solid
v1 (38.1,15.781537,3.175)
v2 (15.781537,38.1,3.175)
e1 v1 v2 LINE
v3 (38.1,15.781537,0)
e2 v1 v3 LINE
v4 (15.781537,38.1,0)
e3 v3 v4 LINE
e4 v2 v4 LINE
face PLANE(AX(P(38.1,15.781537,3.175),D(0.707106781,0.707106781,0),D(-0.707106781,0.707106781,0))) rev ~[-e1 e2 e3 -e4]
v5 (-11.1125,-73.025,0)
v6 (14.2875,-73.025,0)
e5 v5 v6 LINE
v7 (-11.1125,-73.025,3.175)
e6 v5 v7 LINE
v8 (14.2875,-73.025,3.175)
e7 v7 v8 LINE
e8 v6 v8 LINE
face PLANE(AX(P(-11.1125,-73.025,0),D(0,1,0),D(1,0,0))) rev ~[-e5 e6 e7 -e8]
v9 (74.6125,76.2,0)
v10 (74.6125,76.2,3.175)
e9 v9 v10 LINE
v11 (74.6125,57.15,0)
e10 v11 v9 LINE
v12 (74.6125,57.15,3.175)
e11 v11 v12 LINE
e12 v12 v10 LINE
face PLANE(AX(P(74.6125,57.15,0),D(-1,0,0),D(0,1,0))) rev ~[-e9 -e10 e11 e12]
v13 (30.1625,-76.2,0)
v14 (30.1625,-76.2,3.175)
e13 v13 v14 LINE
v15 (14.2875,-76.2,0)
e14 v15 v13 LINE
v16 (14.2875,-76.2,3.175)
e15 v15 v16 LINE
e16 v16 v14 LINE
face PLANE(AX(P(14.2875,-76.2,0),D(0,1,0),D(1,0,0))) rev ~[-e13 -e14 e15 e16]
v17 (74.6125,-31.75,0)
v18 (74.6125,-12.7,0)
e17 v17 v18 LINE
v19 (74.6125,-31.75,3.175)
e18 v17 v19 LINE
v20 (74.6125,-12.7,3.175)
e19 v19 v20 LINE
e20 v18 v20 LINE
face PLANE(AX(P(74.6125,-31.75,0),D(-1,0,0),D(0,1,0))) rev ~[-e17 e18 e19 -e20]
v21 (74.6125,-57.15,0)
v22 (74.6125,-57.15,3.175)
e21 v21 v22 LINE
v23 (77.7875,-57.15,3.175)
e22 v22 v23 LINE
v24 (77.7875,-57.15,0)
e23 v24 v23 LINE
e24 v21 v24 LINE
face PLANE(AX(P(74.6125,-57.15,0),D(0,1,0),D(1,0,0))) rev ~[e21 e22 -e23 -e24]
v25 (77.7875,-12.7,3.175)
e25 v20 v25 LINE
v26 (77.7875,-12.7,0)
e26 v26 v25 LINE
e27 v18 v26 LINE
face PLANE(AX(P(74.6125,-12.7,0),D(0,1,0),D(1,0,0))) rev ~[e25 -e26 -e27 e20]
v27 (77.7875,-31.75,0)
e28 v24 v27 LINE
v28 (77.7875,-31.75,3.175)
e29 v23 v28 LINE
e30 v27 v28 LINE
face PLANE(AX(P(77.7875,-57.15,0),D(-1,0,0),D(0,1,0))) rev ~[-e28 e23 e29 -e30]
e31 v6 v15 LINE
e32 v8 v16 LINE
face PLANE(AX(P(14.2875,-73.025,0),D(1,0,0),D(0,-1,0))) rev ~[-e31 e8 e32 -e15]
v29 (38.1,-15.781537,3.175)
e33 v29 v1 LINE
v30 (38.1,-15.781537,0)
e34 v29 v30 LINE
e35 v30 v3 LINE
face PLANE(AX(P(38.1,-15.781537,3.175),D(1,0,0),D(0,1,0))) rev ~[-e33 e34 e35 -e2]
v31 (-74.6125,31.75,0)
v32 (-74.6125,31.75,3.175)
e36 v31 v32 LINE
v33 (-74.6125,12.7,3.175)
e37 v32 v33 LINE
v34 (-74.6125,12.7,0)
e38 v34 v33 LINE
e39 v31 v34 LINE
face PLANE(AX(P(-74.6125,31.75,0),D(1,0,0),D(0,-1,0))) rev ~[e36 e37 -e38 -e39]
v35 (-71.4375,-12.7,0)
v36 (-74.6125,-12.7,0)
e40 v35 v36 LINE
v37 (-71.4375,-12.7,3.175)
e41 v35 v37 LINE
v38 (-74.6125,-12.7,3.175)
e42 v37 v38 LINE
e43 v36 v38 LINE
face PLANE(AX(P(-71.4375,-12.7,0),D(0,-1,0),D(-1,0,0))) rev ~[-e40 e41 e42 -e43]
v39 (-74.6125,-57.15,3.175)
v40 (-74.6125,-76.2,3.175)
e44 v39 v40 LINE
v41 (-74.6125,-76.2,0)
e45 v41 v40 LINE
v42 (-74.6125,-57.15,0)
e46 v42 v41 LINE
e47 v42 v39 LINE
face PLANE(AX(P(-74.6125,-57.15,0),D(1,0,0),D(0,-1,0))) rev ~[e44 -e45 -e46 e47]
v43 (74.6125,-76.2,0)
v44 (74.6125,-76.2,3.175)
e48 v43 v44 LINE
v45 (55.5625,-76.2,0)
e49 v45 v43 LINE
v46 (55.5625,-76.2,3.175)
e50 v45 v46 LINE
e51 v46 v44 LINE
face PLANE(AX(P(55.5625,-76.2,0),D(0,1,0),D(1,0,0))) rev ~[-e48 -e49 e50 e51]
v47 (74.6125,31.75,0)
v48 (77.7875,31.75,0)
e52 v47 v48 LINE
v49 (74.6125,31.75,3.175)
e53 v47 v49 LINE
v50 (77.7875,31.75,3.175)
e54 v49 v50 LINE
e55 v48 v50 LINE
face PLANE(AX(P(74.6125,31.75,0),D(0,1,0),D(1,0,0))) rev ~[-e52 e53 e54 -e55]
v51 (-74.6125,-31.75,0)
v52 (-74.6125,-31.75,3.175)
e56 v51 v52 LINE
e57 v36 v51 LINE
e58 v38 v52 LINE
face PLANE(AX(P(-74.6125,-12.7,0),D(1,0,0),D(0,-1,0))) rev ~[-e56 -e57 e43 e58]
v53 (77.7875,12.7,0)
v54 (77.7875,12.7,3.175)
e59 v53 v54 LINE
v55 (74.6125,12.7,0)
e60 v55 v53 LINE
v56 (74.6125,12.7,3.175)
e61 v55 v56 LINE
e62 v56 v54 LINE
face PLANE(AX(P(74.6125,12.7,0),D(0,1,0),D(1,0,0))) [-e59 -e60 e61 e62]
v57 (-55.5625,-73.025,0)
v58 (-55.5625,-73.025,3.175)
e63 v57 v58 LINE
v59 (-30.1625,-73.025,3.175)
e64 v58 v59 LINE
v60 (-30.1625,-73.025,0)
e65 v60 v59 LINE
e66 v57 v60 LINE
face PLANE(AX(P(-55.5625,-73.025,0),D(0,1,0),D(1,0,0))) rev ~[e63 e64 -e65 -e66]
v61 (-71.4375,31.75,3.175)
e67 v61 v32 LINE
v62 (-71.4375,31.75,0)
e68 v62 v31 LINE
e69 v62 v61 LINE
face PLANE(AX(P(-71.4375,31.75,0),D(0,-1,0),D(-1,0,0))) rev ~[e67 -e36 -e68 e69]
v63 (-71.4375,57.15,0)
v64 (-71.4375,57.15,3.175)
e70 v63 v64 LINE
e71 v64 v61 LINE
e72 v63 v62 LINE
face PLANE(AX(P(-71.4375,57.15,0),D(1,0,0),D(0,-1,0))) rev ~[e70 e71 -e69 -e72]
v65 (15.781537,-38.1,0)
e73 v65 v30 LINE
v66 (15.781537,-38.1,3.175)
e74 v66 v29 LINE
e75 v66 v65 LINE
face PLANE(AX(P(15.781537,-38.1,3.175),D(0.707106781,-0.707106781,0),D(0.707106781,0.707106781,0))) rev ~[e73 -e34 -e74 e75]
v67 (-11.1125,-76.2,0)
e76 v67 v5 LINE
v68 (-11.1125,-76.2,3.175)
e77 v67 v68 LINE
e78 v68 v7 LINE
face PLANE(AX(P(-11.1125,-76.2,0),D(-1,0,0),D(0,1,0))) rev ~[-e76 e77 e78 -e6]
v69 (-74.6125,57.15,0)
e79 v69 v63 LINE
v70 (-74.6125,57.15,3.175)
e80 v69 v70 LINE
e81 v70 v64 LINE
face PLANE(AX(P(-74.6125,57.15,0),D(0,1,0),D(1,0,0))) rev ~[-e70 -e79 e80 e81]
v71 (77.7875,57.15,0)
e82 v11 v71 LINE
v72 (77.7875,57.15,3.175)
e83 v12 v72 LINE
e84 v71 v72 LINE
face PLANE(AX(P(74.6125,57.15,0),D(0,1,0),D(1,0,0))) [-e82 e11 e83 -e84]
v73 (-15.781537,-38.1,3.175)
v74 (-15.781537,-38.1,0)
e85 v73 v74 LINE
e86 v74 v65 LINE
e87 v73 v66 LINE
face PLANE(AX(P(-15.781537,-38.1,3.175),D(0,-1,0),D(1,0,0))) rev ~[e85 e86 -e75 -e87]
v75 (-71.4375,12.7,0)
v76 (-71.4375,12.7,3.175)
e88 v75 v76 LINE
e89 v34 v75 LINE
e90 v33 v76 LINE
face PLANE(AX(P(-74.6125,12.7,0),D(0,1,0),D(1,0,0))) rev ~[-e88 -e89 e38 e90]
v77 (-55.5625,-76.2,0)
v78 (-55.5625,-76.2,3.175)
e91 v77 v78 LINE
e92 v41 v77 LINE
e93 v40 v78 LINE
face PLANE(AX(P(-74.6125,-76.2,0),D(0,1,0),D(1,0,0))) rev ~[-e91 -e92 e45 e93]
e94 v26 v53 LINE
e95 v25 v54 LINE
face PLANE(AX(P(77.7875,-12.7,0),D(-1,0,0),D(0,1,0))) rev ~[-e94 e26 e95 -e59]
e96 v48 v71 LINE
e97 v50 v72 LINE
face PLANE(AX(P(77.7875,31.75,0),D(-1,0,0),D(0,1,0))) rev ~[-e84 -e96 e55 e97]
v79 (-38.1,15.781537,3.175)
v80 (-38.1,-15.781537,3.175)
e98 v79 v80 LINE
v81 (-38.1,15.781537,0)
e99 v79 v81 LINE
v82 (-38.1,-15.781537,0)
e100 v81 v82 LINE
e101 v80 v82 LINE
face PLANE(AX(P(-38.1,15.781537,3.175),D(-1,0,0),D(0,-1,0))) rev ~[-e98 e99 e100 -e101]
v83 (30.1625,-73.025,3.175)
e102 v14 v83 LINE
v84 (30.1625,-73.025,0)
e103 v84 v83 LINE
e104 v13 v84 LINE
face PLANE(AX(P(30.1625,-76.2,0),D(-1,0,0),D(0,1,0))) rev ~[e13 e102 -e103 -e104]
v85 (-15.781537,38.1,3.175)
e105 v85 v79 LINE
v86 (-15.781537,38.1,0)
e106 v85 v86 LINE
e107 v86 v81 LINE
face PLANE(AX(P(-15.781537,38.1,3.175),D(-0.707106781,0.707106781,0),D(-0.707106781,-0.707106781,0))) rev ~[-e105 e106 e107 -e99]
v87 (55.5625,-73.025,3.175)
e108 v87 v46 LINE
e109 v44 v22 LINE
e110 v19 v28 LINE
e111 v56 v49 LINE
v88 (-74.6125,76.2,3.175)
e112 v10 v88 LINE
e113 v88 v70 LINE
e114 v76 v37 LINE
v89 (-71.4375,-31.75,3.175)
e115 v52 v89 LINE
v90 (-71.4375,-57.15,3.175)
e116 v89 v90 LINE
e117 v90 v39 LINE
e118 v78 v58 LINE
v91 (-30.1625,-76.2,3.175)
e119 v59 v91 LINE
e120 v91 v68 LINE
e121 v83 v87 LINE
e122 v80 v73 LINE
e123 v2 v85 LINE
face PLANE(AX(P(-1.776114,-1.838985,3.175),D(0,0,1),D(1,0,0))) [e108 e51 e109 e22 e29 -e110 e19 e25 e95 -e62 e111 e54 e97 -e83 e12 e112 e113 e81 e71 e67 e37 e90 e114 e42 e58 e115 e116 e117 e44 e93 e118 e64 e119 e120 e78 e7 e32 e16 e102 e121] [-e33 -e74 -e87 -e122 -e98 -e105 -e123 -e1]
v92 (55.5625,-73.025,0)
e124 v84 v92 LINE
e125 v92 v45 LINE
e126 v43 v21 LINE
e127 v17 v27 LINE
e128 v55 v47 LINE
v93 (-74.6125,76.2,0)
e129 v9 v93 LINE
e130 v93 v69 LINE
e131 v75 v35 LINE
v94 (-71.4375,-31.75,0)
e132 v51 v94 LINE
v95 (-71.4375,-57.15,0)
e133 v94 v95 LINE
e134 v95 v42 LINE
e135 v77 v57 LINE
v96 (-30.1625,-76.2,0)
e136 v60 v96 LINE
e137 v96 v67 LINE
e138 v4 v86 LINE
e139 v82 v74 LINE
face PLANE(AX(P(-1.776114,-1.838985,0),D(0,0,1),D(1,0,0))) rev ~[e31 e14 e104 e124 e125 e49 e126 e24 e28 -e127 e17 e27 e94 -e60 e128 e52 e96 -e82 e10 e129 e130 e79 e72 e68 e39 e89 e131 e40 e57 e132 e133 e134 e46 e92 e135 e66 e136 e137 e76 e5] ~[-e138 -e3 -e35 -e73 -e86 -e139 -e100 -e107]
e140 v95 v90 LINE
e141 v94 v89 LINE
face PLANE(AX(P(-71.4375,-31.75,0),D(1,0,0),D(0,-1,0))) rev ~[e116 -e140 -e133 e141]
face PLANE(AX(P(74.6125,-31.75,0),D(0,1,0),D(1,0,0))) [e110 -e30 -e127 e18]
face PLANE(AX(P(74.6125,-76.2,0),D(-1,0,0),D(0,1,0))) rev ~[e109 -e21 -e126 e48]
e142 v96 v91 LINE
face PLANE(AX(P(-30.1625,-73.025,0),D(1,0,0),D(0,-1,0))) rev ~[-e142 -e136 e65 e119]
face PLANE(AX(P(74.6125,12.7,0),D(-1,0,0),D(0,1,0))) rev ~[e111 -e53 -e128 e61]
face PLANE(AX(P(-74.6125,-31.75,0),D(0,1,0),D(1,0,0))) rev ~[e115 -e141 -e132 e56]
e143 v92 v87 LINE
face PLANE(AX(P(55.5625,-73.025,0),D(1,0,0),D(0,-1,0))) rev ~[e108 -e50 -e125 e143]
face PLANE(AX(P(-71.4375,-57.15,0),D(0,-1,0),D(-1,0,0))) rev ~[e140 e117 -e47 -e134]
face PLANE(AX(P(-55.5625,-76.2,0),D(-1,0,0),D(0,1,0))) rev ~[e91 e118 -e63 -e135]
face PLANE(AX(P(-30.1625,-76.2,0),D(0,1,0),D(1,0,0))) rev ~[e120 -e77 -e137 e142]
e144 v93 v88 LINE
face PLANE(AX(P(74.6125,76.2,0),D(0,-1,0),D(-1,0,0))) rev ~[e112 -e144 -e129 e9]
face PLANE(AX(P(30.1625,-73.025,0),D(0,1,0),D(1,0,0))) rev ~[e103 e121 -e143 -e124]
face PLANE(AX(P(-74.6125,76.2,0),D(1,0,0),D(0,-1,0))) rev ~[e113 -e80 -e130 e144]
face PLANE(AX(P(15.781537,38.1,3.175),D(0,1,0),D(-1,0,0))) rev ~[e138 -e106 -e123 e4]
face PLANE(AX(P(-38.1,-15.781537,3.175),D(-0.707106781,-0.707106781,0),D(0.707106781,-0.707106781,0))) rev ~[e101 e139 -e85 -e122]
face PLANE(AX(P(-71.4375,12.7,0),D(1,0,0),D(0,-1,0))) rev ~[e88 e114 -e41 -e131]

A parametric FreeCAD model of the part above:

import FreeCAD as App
import Part
import Sketcher

V = App.Vector
Q = App.Units.Quantity

doc = App.newDocument("Part")
body = doc.addObject("PartDesign::Body", "Body")

# Sketch on XY plane
sketch1 = doc.addObject("Sketcher::SketchObject", "Sketch")
body.addObject(sketch1)
sketch1.AttachmentSupport = (doc.XY_Plane, [""])
sketch1.MapMode = "FlatFace"
sketch1.addGeometry([
    Part.LineSegment(V(55.6, -76.2, 0), V(74.6, -76.2, 0)),  # 0
    Part.LineSegment(V(74.6, -76.2, 0), V(74.6, -57.1, 0)),  # 1
    Part.LineSegment(V(74.6, -57.1, 0), V(77.8, -57.1, 0)),  # 2
    Part.LineSegment(V(77.8, -57.1, 0), V(77.8, -31.8, 0)),  # 3
    Part.LineSegment(V(77.8, -31.8, 0), V(74.6, -31.8, 0)),  # 4
    Part.LineSegment(V(74.6, -31.8, 0), V(74.6, -12.7, 0)),  # 5
    Part.LineSegment(V(74.6, -12.7, 0), V(77.8, -12.7, 0)),  # 6
    Part.LineSegment(V(77.8, -12.7, 0), V(77.8, 12.7, 0)),  # 7
    Part.LineSegment(V(77.8, 12.7, 0), V(74.6, 12.7, 0)),  # 8
    Part.LineSegment(V(74.6, 12.7, 0), V(74.6, 31.8, 0)),  # 9
    Part.LineSegment(V(74.6, 31.8, 0), V(77.8, 31.8, 0)),  # 10
    Part.LineSegment(V(77.8, 31.8, 0), V(77.8, 57.1, 0)),  # 11
    Part.LineSegment(V(77.8, 57.1, 0), V(74.6, 57.1, 0)),  # 12
    Part.LineSegment(V(74.6, 57.1, 0), V(74.6, 76.2, 0)),  # 13
    Part.LineSegment(V(74.6, 76.2, 0), V(-74.6, 76.2, 0)),  # 14
    Part.LineSegment(V(-74.6, 76.2, 0), V(-74.6, 57.1, 0)),  # 15
    Part.LineSegment(V(-74.6, 57.1, 0), V(-71.4, 57.1, 0)),  # 16
    Part.LineSegment(V(-71.4, 57.1, 0), V(-71.4, 31.8, 0)),  # 17
    Part.LineSegment(V(-71.4, 31.8, 0), V(-74.6, 31.8, 0)),  # 18
    Part.LineSegment(V(-74.6, 31.8, 0), V(-74.6, 12.7, 0)),  # 19
    Part.LineSegment(V(-74.6, 12.7, 0), V(-71.4, 12.7, 0)),  # 20
    Part.LineSegment(V(-71.4, 12.7, 0), V(-71.4, -12.7, 0)),  # 21
    Part.LineSegment(V(-71.4, -12.7, 0), V(-74.6, -12.7, 0)),  # 22
    Part.LineSegment(V(-74.6, -12.7, 0), V(-74.6, -31.8, 0)),  # 23
    Part.LineSegment(V(-74.6, -31.8, 0), V(-71.4, -31.8, 0)),  # 24
    Part.LineSegment(V(-71.4, -31.8, 0), V(-71.4, -57.1, 0)),  # 25
    Part.LineSegment(V(-71.4, -57.1, 0), V(-74.6, -57.1, 0)),  # 26
    Part.LineSegment(V(-74.6, -57.1, 0), V(-74.6, -76.2, 0)),  # 27
    Part.LineSegment(V(-74.6, -76.2, 0), V(-55.6, -76.2, 0)),  # 28
    Part.LineSegment(V(-55.6, -76.2, 0), V(-55.6, -73, 0)),  # 29
    Part.LineSegment(V(-55.6, -73, 0), V(-30.2, -73, 0)),  # 30
    Part.LineSegment(V(-30.2, -73, 0), V(-30.2, -76.2, 0)),  # 31
    Part.LineSegment(V(-30.2, -76.2, 0), V(-11.1, -76.2, 0)),  # 32
    Part.LineSegment(V(-11.1, -76.2, 0), V(-11.1, -73, 0)),  # 33
    Part.LineSegment(V(-11.1, -73, 0), V(14.3, -73, 0)),  # 34
    Part.LineSegment(V(14.3, -73, 0), V(14.3, -76.2, 0)),  # 35
    Part.LineSegment(V(14.3, -76.2, 0), V(30.2, -76.2, 0)),  # 36
    Part.LineSegment(V(30.2, -76.2, 0), V(30.2, -73, 0)),  # 37
    Part.LineSegment(V(30.2, -73, 0), V(55.6, -73, 0)),  # 38
    Part.LineSegment(V(55.6, -73, 0), V(55.6, -76.2, 0)),  # 39
], False)
sketch1.addConstraint([
    Sketcher.Constraint("Coincident", 0, 2, 1, 1),
    Sketcher.Constraint("Coincident", 1, 2, 2, 1),
    Sketcher.Constraint("Coincident", 2, 2, 3, 1),
    Sketcher.Constraint("Coincident", 3, 2, 4, 1),
    Sketcher.Constraint("Coincident", 4, 2, 5, 1),
    Sketcher.Constraint("Coincident", 5, 2, 6, 1),
    Sketcher.Constraint("Coincident", 6, 2, 7, 1),
    Sketcher.Constraint("Coincident", 7, 2, 8, 1),
    Sketcher.Constraint("Coincident", 8, 2, 9, 1),
    Sketcher.Constraint("Coincident", 9, 2, 10, 1),
    Sketcher.Constraint("Coincident", 10, 2, 11, 1),
    Sketcher.Constraint("Coincident", 11, 2, 12, 1),
    Sketcher.Constraint("Coincident", 12, 2, 13, 1),
    Sketcher.Constraint("Coincident", 13, 2, 14, 1),
    Sketcher.Constraint("Coincident", 14, 2, 15, 1),
    Sketcher.Constraint("Coincident", 15, 2, 16, 1),
    Sketcher.Constraint("Coincident", 16, 2, 17, 1),
    Sketcher.Constraint("Coincident", 17, 2, 18, 1),
    Sketcher.Constraint("Coincident", 18, 2, 19, 1),
    Sketcher.Constraint("Coincident", 19, 2, 20, 1),
    Sketcher.Constraint("Coincident", 20, 2, 21, 1),
    Sketcher.Constraint("Coincident", 21, 2, 22, 1),
    Sketcher.Constraint("Coincident", 22, 2, 23, 1),
    Sketcher.Constraint("Coincident", 23, 2, 24, 1),
    Sketcher.Constraint("Coincident", 24, 2, 25, 1),
    Sketcher.Constraint("Coincident", 25, 2, 26, 1),
    Sketcher.Constraint("Coincident", 26, 2, 27, 1),
    Sketcher.Constraint("Coincident", 27, 2, 28, 1),
    Sketcher.Constraint("Coincident", 28, 2, 29, 1),
    Sketcher.Constraint("Coincident", 29, 2, 30, 1),
    Sketcher.Constraint("Coincident", 30, 2, 31, 1),
    Sketcher.Constraint("Coincident", 31, 2, 32, 1),
    Sketcher.Constraint("Coincident", 32, 2, 33, 1),
    Sketcher.Constraint("Coincident", 33, 2, 34, 1),
    Sketcher.Constraint("Coincident", 34, 2, 35, 1),
    Sketcher.Constraint("Coincident", 35, 2, 36, 1),
    Sketcher.Constraint("Coincident", 36, 2, 37, 1),
    Sketcher.Constraint("Coincident", 37, 2, 38, 1),
    Sketcher.Constraint("Coincident", 38, 2, 39, 1),
    Sketcher.Constraint("Coincident", 39, 2, 0, 1),
    Sketcher.Constraint("Horizontal", 0),
    Sketcher.Constraint("Vertical", 1),
    Sketcher.Constraint("Horizontal", 2),
    Sketcher.Constraint("Vertical", 3),
    Sketcher.Constraint("Horizontal", 4),
    Sketcher.Constraint("Vertical", 5),
    Sketcher.Constraint("Horizontal", 6),
    Sketcher.Constraint("Vertical", 7),
    Sketcher.Constraint("Horizontal", 8),
    Sketcher.Constraint("Vertical", 9),
    Sketcher.Constraint("Horizontal", 10),
    Sketcher.Constraint("Vertical", 11),
    Sketcher.Constraint("Horizontal", 12),
    Sketcher.Constraint("Vertical", 13),
    Sketcher.Constraint("Horizontal", 14),
    Sketcher.Constraint("Vertical", 15),
    Sketcher.Constraint("Horizontal", 16),
    Sketcher.Constraint("Vertical", 17),
    Sketcher.Constraint("Horizontal", 18),
    Sketcher.Constraint("Vertical", 19),
    Sketcher.Constraint("Horizontal", 20),
    Sketcher.Constraint("Vertical", 21),
    Sketcher.Constraint("Horizontal", 22),
    Sketcher.Constraint("Vertical", 23),
    Sketcher.Constraint("Horizontal", 24),
    Sketcher.Constraint("Vertical", 25),
    Sketcher.Constraint("Horizontal", 26),
    Sketcher.Constraint("Vertical", 27),
    Sketcher.Constraint("Horizontal", 28),
    Sketcher.Constraint("Vertical", 29),
    Sketcher.Constraint("Horizontal", 30),
    Sketcher.Constraint("Vertical", 31),
    Sketcher.Constraint("Horizontal", 32),
    Sketcher.Constraint("Vertical", 33),
    Sketcher.Constraint("Horizontal", 34),
    Sketcher.Constraint("Vertical", 35),
    Sketcher.Constraint("Horizontal", 36),
    Sketcher.Constraint("Vertical", 37),
    Sketcher.Constraint("Horizontal", 38),
    Sketcher.Constraint("Vertical", 39),
    Sketcher.Constraint("Symmetric", 0, 2, 14, 2, -1, 1),
    Sketcher.Constraint("Symmetric", 4, 2, 18, 2, -1, 1),
    Sketcher.Constraint("Symmetric", 8, 2, 22, 2, -1, 1),
    Sketcher.Constraint("Symmetric", 12, 2, 26, 2, -1, 1),
    Sketcher.Constraint("Symmetric", 12, 2, 15, 2, -2),
    Sketcher.Constraint("Symmetric", 9, 2, 18, 2, -2),
    Sketcher.Constraint("Symmetric", 31, 2, 36, 2, -2),
    Sketcher.Constraint("Symmetric", 29, 2, 38, 2, -2),
    Sketcher.Constraint("Symmetric", 2, 2, 11, 2, -1),
    Sketcher.Constraint("Symmetric", 17, 2, 24, 2, -1),
    Sketcher.Constraint("Horizontal", 8, 2, 19, 2),
    Sketcher.Constraint("Horizontal", 6, 2, 21, 2),
    Sketcher.Constraint("Horizontal", 0, 2, 27, 2),
    Sketcher.Constraint("Horizontal", 28, 2, 31, 2),
    Sketcher.Constraint("Horizontal", 30, 2, 33, 2),
    Sketcher.Constraint("Vertical", 1, 2, 4, 2),
    Sketcher.Constraint("Vertical", 3, 2, 6, 2),
    Sketcher.Constraint("Vertical", 17, 2, 20, 2),
    Sketcher.Constraint("Equal", 12, 16),
    Sketcher.Constraint("Equal", 28, 32),
    Sketcher.Constraint("Equal", 30, 34),
    Sketcher.Constraint("Equal", 32, 1),
    Sketcher.Constraint("Equal", 38, 3),
    Sketcher.Constraint("Equal", 1, 5),
    Sketcher.Constraint("Equal", 3, 7),
    Sketcher.Constraint("Equal", 26, 29),
    Sketcher.Constraint("DistanceX", 30, 1, 30, 2, Q("1 in")),
    Sketcher.Constraint("DistanceY", 0, 2, -1, 1, Q("3 in")),
    Sketcher.Constraint("DistanceX", 14, 2, 11, 2, Q("6 in")),
    Sketcher.Constraint("DistanceX", 2, 1, 2, 2, Q("0.125 in")),
])
pad1 = doc.addObject("PartDesign::Pad", "Pad")
body.addObject(pad1)
pad1.Profile = sketch1
pad1.Length = Q("0.125 in")

# Sketch on XY plane
sketch2 = doc.addObject("Sketcher::SketchObject", "Sketch001")
body.addObject(sketch2)
sketch2.AttachmentSupport = (doc.XY_Plane, [""])
sketch2.MapMode = "FlatFace"
sketch2.AttachmentOffset = App.Placement(V(0, 0, 0.125 * 25.4), App.Rotation())
sketch2.addGeometry([
    Part.LineSegment(V(-16, 38, 0), V(-38, 16, 0)),  # 0
    Part.LineSegment(V(-38, 16, 0), V(-38, -16, 0)),  # 1
    Part.LineSegment(V(-38, -16, 0), V(-16, -38, 0)),  # 2
    Part.LineSegment(V(-16, -38, 0), V(16, -38, 0)),  # 3
    Part.LineSegment(V(16, -38, 0), V(38, -16, 0)),  # 4
    Part.LineSegment(V(38, -16, 0), V(38, 16, 0)),  # 5
    Part.LineSegment(V(38, 16, 0), V(16, 38, 0)),  # 6
    Part.LineSegment(V(16, 38, 0), V(-16, 38, 0)),  # 7
], False)
sketch2.addConstraint([
    Sketcher.Constraint("Coincident", 0, 2, 1, 1),
    Sketcher.Constraint("Coincident", 1, 2, 2, 1),
    Sketcher.Constraint("Coincident", 2, 2, 3, 1),
    Sketcher.Constraint("Coincident", 3, 2, 4, 1),
    Sketcher.Constraint("Coincident", 4, 2, 5, 1),
    Sketcher.Constraint("Coincident", 5, 2, 6, 1),
    Sketcher.Constraint("Coincident", 6, 2, 7, 1),
    Sketcher.Constraint("Coincident", 7, 2, 0, 1),
    Sketcher.Constraint("Vertical", 1),
    Sketcher.Constraint("Horizontal", 3),
    Sketcher.Constraint("Vertical", 5),
    Sketcher.Constraint("Horizontal", 7),
    Sketcher.Constraint("Symmetric", 0, 2, 4, 2, -1, 1),
    Sketcher.Constraint("Symmetric", 2, 2, 6, 2, -1, 1),
    Sketcher.Constraint("Perpendicular", 0, 2),
    Sketcher.Constraint("Perpendicular", 2, 4),
    Sketcher.Constraint("Perpendicular", 4, 6),
    Sketcher.Constraint("Horizontal", 1, 2, 4, 2),
    Sketcher.Constraint("Vertical", 3, 2, 6, 2),
    Sketcher.Constraint("Equal", 7, 1),
    Sketcher.Constraint("DistanceX", 1, 2, 4, 2, Q("3 in")),
    Sketcher.Constraint("DistanceX", 3, 1, 3, 2, 31.563073),
])
pocket1 = doc.addObject("PartDesign::Pocket", "Pocket")
body.addObject(pocket1)
pocket1.Profile = sketch2
pocket1.Type = "ThroughAll"

doc.recompute()
